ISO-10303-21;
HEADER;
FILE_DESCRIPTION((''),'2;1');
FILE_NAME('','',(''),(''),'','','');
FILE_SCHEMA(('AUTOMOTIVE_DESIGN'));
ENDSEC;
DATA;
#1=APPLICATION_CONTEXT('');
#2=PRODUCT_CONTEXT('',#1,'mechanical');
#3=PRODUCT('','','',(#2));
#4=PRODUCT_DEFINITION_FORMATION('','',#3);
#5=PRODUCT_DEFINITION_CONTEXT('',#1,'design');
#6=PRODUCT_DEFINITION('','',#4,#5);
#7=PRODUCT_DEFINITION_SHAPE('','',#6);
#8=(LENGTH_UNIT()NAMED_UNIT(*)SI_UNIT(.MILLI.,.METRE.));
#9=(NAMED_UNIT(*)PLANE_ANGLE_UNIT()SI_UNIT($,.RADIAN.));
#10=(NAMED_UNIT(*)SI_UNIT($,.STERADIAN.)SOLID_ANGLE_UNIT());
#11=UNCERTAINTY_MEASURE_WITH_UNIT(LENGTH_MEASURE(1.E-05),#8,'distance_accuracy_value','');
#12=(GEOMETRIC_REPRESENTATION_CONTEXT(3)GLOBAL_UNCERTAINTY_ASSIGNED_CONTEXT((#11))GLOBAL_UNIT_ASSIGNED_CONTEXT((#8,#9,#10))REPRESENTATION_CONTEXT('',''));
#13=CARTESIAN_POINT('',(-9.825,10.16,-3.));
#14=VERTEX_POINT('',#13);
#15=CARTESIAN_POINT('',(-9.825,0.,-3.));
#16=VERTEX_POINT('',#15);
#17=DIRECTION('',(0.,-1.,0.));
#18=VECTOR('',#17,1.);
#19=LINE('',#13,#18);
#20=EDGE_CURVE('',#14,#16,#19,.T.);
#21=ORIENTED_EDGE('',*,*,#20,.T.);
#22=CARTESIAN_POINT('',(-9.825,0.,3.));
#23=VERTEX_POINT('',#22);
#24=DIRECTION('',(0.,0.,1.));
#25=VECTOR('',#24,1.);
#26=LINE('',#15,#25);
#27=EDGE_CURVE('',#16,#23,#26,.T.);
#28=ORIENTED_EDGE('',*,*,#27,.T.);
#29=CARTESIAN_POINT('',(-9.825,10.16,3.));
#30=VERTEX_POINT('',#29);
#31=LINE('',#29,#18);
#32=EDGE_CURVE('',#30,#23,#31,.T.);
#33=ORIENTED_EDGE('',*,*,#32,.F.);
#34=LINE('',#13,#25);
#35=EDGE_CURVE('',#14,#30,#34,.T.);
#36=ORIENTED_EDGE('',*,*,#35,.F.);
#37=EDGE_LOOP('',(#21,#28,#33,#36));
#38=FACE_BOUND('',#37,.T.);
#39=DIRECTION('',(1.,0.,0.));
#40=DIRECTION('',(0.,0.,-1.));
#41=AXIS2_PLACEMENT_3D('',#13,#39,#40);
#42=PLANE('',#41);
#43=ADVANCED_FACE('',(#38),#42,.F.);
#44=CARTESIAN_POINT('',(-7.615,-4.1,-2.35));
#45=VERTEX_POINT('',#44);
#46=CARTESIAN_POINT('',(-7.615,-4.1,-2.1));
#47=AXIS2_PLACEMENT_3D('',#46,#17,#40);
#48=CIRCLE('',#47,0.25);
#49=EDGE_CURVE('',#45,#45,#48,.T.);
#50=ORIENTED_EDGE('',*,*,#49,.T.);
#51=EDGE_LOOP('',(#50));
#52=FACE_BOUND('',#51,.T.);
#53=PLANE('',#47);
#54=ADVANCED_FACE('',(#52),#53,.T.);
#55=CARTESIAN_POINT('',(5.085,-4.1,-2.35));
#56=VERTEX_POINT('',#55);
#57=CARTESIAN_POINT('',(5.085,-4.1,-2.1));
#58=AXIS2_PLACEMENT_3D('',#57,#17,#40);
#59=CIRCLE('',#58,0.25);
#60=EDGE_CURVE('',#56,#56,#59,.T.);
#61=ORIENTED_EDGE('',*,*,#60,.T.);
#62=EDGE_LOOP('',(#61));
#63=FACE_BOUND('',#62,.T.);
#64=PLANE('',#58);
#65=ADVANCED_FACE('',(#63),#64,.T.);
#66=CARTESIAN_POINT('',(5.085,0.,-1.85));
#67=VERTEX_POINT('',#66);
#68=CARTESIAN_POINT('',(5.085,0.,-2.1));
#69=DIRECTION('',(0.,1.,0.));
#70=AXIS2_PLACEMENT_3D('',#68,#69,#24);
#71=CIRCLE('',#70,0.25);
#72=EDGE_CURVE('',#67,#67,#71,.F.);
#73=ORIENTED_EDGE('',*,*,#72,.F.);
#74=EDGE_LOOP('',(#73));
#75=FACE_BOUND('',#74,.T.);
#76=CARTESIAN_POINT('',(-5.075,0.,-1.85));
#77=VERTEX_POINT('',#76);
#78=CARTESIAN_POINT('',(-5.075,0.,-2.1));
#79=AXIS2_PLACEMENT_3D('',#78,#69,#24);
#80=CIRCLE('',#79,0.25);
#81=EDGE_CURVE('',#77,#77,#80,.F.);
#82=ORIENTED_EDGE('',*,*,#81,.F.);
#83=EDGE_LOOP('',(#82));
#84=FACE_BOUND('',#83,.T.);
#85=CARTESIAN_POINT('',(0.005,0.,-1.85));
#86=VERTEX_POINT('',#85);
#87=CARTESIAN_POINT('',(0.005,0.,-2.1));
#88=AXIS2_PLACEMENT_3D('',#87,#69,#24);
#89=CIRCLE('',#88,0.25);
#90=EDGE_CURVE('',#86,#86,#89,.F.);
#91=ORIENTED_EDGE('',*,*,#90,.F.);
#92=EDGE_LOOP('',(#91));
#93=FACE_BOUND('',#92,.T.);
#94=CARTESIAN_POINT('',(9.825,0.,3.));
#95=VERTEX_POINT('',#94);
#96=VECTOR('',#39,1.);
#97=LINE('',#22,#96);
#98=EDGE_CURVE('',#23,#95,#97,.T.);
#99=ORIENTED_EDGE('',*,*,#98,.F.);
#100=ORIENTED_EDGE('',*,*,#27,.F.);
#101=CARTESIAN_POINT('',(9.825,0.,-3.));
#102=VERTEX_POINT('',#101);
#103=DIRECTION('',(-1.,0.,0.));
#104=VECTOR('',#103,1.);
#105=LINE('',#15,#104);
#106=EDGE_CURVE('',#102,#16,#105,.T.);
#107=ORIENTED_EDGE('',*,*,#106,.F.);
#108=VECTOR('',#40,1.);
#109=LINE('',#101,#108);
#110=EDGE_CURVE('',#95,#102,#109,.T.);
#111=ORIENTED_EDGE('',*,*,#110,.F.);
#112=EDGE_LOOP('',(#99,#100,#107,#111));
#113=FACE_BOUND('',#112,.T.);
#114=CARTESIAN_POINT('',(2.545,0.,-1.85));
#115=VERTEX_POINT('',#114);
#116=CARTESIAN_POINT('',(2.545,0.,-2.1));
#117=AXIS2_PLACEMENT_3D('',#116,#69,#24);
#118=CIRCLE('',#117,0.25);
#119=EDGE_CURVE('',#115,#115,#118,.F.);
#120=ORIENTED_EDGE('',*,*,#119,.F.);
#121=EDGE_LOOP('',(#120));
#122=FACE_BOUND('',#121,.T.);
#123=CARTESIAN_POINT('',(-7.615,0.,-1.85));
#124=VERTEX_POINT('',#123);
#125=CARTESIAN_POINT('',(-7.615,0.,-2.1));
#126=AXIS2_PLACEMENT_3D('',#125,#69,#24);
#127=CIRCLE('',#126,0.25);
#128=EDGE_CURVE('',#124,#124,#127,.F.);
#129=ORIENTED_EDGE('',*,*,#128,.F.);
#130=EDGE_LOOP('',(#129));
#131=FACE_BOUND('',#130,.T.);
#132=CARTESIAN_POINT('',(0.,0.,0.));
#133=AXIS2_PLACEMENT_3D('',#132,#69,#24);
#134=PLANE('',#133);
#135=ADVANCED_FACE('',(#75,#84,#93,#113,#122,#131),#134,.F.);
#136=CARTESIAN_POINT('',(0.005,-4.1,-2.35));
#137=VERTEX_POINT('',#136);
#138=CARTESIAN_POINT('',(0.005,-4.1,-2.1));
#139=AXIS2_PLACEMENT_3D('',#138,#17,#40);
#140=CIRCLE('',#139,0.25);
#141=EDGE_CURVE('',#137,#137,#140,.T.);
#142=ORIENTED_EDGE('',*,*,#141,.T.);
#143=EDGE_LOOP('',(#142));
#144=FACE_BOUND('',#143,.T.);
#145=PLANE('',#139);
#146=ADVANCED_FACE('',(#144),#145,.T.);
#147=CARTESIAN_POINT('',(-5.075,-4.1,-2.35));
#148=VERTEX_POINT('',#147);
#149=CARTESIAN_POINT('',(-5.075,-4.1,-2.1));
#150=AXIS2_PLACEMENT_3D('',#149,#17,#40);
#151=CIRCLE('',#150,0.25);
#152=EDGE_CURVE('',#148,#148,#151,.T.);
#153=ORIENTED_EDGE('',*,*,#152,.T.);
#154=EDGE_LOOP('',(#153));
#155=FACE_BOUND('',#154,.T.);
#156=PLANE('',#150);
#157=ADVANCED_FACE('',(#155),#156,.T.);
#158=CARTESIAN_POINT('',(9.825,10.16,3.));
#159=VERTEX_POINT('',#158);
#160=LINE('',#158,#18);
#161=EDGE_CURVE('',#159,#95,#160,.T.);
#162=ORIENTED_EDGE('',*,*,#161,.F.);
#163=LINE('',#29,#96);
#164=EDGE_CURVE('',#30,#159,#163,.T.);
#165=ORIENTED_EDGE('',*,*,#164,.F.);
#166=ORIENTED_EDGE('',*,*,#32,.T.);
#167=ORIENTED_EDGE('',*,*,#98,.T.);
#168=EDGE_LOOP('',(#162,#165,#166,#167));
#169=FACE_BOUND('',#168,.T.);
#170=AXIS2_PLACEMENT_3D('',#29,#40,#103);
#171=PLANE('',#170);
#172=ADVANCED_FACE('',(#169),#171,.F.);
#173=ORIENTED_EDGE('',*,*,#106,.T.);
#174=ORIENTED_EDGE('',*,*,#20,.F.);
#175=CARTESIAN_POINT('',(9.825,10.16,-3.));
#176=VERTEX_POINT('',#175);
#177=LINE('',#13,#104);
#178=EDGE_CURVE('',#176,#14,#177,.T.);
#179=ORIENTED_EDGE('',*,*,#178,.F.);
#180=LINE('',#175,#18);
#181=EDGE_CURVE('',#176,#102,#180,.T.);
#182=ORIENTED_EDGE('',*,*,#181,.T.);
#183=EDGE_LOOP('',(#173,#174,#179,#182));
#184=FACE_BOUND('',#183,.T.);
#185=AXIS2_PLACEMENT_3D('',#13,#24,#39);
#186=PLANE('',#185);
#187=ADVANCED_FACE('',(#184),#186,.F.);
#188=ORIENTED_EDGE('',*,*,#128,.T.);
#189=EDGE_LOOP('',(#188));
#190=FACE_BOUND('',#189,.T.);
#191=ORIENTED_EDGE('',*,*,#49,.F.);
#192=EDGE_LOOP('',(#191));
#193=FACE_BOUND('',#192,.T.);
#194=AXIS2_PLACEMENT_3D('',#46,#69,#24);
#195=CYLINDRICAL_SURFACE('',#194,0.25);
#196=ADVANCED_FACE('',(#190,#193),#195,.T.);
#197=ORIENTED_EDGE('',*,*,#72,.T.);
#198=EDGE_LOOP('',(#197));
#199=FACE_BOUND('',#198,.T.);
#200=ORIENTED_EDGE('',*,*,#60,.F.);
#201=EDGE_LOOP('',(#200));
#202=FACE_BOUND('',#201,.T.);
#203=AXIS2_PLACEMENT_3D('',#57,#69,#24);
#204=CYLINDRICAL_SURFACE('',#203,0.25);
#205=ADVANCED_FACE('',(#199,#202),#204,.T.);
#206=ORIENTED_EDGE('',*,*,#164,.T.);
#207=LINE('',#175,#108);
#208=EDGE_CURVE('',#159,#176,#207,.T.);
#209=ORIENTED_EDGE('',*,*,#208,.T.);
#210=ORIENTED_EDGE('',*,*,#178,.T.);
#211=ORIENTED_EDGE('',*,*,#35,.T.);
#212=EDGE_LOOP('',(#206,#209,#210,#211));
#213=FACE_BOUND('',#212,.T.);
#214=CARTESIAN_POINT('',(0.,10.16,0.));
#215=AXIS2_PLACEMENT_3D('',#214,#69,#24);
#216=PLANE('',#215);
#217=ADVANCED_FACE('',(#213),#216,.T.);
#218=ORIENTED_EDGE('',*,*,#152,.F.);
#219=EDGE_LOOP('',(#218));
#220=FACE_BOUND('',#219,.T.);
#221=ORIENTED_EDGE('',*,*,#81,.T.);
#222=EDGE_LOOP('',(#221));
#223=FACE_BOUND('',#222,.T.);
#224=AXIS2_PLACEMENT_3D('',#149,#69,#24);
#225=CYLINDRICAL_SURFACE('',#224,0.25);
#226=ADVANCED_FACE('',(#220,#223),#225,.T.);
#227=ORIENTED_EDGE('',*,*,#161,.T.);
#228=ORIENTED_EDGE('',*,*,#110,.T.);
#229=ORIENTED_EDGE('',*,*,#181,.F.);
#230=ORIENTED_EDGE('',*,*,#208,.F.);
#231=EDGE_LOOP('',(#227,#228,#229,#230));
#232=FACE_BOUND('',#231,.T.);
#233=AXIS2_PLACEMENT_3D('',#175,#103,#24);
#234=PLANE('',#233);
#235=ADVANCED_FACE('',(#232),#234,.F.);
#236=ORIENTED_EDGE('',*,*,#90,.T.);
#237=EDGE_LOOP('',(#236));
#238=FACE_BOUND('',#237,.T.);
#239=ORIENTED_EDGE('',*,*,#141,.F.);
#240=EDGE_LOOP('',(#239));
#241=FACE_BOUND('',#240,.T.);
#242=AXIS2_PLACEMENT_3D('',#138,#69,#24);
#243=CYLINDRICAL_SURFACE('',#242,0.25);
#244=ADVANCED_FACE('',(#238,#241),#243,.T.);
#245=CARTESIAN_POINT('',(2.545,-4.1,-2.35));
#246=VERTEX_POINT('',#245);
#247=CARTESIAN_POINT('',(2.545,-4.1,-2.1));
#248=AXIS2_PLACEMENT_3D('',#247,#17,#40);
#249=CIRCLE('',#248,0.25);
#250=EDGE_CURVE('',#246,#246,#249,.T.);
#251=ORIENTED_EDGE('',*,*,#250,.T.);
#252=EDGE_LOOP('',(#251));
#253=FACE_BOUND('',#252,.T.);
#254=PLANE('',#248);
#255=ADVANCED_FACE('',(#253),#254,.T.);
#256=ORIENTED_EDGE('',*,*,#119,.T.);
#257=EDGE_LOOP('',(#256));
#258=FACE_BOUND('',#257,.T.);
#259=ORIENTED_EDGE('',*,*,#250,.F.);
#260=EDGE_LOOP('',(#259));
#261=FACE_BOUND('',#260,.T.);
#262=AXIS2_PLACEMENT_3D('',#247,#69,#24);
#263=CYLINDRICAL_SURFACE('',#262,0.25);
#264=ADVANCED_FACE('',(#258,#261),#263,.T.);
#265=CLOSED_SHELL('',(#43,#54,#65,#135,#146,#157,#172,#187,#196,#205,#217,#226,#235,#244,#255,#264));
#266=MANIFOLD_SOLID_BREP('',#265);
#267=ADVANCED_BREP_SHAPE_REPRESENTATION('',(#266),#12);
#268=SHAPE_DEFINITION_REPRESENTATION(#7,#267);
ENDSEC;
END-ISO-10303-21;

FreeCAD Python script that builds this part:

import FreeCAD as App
import Part
import Sketcher


def add_polygon(sketch, points):
    """Adds a closed chain of lines whose ends are joined by coincident constraints."""
    first, n = sketch.GeometryCount, len(points)
    for a, b in zip(points, points[1:] + points[:1]):
        sketch.addGeometry(Part.LineSegment(App.Vector(*a, 0), App.Vector(*b, 0)), False)
    for i in range(n):
        sketch.addConstraint(Sketcher.Constraint("Coincident", first + i, 2, first + (i + 1) % n, 1))

doc = App.newDocument("Part")
body = doc.addObject("PartDesign::Body", "Body")

# Sketch on XZ plane
sketch1 = body.newObject("Sketcher::SketchObject", "Sketch")
sketch1.AttachmentSupport = (doc.getObject("XZ_Plane"), [""])
sketch1.MapMode = "FlatFace"
add_polygon(sketch1, [(-10, -3), (-10, 3), (10, 3), (10, -3)])  # lines 0-3
sketch1.addConstraint(Sketcher.Constraint("Vertical", 0))
sketch1.addConstraint(Sketcher.Constraint("Horizontal", 1))
sketch1.addConstraint(Sketcher.Constraint("Vertical", 2))
sketch1.addConstraint(Sketcher.Constraint("Horizontal", 3))
sketch1.addConstraint(Sketcher.Constraint("Symmetric", 0, 2, 2, 2, -1, 1))
sketch1.addConstraint(Sketcher.Constraint("DistanceY", 0, 1, 0, 2, 6.0))
sketch1.addConstraint(Sketcher.Constraint("DistanceX", 1, 1, 1, 2, 19.65))
pad1 = body.newObject("PartDesign::Pad", "Pad")
pad1.Profile = sketch1
pad1.Length = 10.16
pad1.Reversed = True

# Sketch on XZ plane
sketch2 = body.newObject("Sketcher::SketchObject", "Sketch001")
sketch2.AttachmentSupport = (doc.getObject("XZ_Plane"), [""])
sketch2.MapMode = "FlatFace"
sketch2.addGeometry(Part.Circle(App.Vector(0.01, -2.1, 0), App.Vector(0, 0, 1), 0.25), False)
sketch2.addGeometry(Part.Circle(App.Vector(2.54, -2.1, 0), App.Vector(0, 0, 1), 0.25), False)
sketch2.addGeometry(Part.Circle(App.Vector(5.08, -2.1, 0), App.Vector(0, 0, 1), 0.25), False)
sketch2.addGeometry(Part.Circle(App.Vector(-5.08, -2.1, 0), App.Vector(0, 0, 1), 0.25), False)
sketch2.addGeometry(Part.Circle(App.Vector(-7.62, -2.1, 0), App.Vector(0, 0, 1), 0.25), False)
sketch2.addConstraint(Sketcher.Constraint("Equal", 0, 1))
sketch2.addConstraint(Sketcher.Constraint("Equal", 1, 2))
sketch2.addConstraint(Sketcher.Constraint("Equal", 2, 3))
sketch2.addConstraint(Sketcher.Constraint("Equal", 3, 4))
sketch2.addConstraint(Sketcher.Constraint("Horizontal", 0, 3, 1, 3))
sketch2.addConstraint(Sketcher.Constraint("Horizontal", 1, 3, 2, 3))
sketch2.addConstraint(Sketcher.Constraint("Horizontal", 2, 3, 3, 3))
sketch2.addConstraint(Sketcher.Constraint("Horizontal", 3, 3, 4, 3))
sketch2.addConstraint(Sketcher.Constraint("Diameter", 0, 0.5))
sketch2.addConstraint(Sketcher.Constraint("DistanceY", 0, 3, -1, 1, 2.1))
sketch2.addConstraint(Sketcher.Constraint("DistanceX", 4, 3, 2, 3, 12.7))
sketch2.addConstraint(Sketcher.Constraint("DistanceX", 0, 3, 1, 3, 2.54))
sketch2.addConstraint(Sketcher.Constraint("DistanceX", 1, 3, 2, 3, 2.54))
sketch2.addConstraint(Sketcher.Constraint("DistanceX", 3, 3, 0, 3, 5.08))
sketch2.addConstraint(Sketcher.Constraint("DistanceX", -1, 1, 0, 3, 0.005))
pad2 = body.newObject("PartDesign::Pad", "Pad001")
pad2.Profile = sketch2
pad2.Length = 4.1

doc.recompute()
